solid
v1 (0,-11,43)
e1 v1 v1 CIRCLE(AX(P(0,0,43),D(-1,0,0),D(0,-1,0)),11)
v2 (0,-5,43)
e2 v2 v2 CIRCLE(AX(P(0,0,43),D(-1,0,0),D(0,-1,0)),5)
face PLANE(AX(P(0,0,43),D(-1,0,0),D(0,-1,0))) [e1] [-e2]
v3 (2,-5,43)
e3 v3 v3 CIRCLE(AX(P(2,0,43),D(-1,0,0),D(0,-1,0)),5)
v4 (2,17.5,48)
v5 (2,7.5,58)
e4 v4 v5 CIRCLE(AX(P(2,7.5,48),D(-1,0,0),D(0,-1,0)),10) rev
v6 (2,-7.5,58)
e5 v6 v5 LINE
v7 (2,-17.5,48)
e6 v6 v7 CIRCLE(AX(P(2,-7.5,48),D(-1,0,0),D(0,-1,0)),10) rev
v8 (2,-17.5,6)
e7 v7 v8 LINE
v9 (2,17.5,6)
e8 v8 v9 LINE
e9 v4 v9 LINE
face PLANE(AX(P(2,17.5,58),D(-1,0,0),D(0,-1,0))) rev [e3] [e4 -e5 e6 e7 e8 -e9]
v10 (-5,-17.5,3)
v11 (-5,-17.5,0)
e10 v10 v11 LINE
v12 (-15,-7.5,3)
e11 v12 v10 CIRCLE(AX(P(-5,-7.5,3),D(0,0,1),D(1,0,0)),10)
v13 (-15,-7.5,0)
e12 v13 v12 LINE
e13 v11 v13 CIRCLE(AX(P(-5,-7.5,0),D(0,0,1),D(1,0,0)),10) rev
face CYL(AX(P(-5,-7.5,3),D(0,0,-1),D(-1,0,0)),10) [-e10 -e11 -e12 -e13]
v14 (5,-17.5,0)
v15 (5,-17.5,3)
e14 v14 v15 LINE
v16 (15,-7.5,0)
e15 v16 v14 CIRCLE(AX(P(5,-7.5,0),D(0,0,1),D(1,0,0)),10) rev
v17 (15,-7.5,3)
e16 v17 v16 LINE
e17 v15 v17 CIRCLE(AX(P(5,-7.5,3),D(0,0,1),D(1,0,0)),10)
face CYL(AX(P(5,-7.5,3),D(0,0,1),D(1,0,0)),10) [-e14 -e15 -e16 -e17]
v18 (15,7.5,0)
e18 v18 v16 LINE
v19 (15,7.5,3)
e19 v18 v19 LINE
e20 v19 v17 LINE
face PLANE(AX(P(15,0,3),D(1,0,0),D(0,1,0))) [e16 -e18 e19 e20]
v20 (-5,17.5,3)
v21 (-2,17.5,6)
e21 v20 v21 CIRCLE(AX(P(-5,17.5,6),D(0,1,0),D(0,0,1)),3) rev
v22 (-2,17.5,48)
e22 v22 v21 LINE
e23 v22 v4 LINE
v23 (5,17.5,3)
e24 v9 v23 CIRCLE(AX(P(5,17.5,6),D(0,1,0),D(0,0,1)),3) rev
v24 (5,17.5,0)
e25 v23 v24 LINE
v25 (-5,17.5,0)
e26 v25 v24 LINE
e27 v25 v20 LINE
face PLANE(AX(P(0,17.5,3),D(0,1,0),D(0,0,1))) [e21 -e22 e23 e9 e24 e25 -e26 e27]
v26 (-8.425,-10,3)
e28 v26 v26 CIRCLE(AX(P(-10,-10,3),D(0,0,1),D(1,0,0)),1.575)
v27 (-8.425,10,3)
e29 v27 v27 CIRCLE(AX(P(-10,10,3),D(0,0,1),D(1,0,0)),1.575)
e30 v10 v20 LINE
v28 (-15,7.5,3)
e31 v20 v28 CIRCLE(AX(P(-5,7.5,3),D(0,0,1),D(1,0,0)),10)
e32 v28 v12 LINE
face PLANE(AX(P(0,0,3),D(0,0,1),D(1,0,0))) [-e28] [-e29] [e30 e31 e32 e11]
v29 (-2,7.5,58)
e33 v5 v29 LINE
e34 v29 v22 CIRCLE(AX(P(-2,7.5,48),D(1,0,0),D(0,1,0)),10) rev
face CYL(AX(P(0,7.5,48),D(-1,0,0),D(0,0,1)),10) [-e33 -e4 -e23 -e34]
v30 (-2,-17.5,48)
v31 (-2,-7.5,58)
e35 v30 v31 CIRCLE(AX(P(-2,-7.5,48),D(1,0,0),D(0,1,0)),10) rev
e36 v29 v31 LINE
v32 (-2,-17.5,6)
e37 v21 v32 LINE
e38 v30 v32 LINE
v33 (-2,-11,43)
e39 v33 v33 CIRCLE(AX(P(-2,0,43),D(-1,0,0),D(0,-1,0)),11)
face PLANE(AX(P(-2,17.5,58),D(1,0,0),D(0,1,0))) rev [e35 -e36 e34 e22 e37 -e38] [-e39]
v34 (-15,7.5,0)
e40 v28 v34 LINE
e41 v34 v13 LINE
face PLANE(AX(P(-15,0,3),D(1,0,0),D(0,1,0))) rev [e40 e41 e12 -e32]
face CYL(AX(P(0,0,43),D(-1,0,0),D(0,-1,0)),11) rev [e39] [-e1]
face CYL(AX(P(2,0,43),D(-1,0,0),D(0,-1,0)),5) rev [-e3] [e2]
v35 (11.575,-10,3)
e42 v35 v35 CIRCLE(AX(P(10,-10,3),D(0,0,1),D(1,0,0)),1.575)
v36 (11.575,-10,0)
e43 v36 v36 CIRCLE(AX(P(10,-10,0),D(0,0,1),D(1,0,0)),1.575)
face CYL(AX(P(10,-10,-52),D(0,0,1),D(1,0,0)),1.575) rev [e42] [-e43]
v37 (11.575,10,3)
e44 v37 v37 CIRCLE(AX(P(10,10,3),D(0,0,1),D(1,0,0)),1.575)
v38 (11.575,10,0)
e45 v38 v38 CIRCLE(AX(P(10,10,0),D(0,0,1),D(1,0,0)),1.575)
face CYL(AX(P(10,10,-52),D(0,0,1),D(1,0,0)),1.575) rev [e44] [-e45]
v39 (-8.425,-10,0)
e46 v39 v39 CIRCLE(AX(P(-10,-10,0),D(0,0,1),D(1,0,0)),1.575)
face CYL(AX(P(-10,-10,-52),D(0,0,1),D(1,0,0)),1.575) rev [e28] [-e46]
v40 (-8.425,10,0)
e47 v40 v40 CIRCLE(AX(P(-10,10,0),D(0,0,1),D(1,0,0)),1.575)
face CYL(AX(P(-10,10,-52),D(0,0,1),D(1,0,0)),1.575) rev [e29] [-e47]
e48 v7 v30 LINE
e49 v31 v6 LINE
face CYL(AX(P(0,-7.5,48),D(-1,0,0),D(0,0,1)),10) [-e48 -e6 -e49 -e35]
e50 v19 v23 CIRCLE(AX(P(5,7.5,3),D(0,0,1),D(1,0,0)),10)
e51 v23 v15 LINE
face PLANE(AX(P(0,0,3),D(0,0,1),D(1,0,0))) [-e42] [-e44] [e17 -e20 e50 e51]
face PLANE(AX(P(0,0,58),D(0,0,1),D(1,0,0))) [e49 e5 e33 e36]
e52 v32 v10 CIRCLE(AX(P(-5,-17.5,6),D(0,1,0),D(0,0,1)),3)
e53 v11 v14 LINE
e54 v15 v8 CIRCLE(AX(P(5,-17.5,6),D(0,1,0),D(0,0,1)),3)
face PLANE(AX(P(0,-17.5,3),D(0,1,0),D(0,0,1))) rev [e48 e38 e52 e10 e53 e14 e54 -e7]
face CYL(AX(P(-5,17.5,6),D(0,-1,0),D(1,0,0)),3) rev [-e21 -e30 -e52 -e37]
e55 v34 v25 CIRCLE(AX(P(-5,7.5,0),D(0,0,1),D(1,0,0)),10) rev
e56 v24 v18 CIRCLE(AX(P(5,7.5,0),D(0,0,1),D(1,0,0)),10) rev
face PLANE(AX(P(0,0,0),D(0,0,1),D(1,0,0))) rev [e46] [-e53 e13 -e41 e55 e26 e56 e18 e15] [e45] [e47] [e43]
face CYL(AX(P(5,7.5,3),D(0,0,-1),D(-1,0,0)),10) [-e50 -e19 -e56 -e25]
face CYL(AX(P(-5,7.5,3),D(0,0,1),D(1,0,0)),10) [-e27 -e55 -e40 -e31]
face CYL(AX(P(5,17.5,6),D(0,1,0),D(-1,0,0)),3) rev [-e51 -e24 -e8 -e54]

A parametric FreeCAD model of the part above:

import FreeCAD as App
import Part
import Sketcher
Q = App.Units.Quantity


def edges_at(feature, points):
    """Names of the edges that pass closest to the given points."""
    edges = feature.Shape.Edges
    near = lambda p: min(range(len(edges)), key=lambda i: edges[i].distToShape(Part.Vertex(*p))[0])
    return sorted({f"Edge{near(p) + 1}" for p in points})

doc = App.newDocument("Part")
body = doc.addObject("PartDesign::Body", "Body")

sketch1 = doc.addObject("Sketcher::SketchObject", "Sketch")
body.addObject(sketch1)
sketch1.AttachmentSupport = (doc.XY_Plane, [""])
sketch1.MapMode = "FlatFace"
sketch1.addGeometry(Part.LineSegment(App.Vector(-15, 17.5, 0), App.Vector(-15, -17.5, 0)), False)
sketch1.addGeometry(Part.LineSegment(App.Vector(-15, -17.5, 0), App.Vector(15, -17.5, 0)), False)
sketch1.addGeometry(Part.LineSegment(App.Vector(15, -17.5, 0), App.Vector(15, 17.5, 0)), False)
sketch1.addGeometry(Part.LineSegment(App.Vector(15, 17.5, 0), App.Vector(-15, 17.5, 0)), False)
sketch1.addConstraint(Sketcher.Constraint("Coincident", 0, 2, 1, 1))
sketch1.addConstraint(Sketcher.Constraint("Coincident", 1, 2, 2, 1))
sketch1.addConstraint(Sketcher.Constraint("Coincident", 2, 2, 3, 1))
sketch1.addConstraint(Sketcher.Constraint("Coincident", 3, 2, 0, 1))
sketch1.addConstraint(Sketcher.Constraint("Vertical", 0))
sketch1.addConstraint(Sketcher.Constraint("Horizontal", 1))
sketch1.addConstraint(Sketcher.Constraint("Vertical", 2))
sketch1.addConstraint(Sketcher.Constraint("Horizontal", 3))
sketch1.addConstraint(Sketcher.Constraint("Symmetric", 0, 2, 2, 2, -1, 1))
sketch1.addConstraint(Sketcher.Constraint("DistanceX", 1, 1, 1, 2, Q("30 mm")))
sketch1.addConstraint(Sketcher.Constraint("DistanceY", 0, 2, 0, 1, Q("35 mm")))
pad1 = doc.addObject("PartDesign::Pad", "Pad")
body.addObject(pad1)
pad1.Profile = sketch1
pad1.Length = 3

sketch2 = doc.addObject("Sketcher::SketchObject", "Sketch001")
body.addObject(sketch2)
sketch2.AttachmentSupport = (doc.XY_Plane, [""])
sketch2.MapMode = "FlatFace"
sketch2.AttachmentOffset = App.Placement(App.Vector(0, 0, 3), App.Rotation())
sketch2.addGeometry(Part.LineSegment(App.Vector(-2, 17.5, 0), App.Vector(-2, -17.5, 0)), False)
sketch2.addGeometry(Part.LineSegment(App.Vector(-2, -17.5, 0), App.Vector(2, -17.5, 0)), False)
sketch2.addGeometry(Part.LineSegment(App.Vector(2, -17.5, 0), App.Vector(2, 17.5, 0)), False)
sketch2.addGeometry(Part.LineSegment(App.Vector(2, 17.5, 0), App.Vector(-2, 17.5, 0)), False)
sketch2.addConstraint(Sketcher.Constraint("Coincident", 0, 2, 1, 1))
sketch2.addConstraint(Sketcher.Constraint("Coincident", 1, 2, 2, 1))
sketch2.addConstraint(Sketcher.Constraint("Coincident", 2, 2, 3, 1))
sketch2.addConstraint(Sketcher.Constraint("Coincident", 3, 2, 0, 1))
sketch2.addConstraint(Sketcher.Constraint("Vertical", 0))
sketch2.addConstraint(Sketcher.Constraint("Horizontal", 1))
sketch2.addConstraint(Sketcher.Constraint("Vertical", 2))
sketch2.addConstraint(Sketcher.Constraint("Horizontal", 3))
sketch2.addConstraint(Sketcher.Constraint("Symmetric", 0, 2, 2, 2, -1, 1))
sketch2.addConstraint(Sketcher.Constraint("DistanceX", 1, 1, 1, 2, Q("4 mm")))
sketch2.addConstraint(Sketcher.Constraint("DistanceY", 0, 2, 0, 1, Q("35 mm")))
pad2 = doc.addObject("PartDesign::Pad", "Pad001")
body.addObject(pad2)
pad2.Profile = sketch2
pad2.Length = 55

sketch3 = doc.addObject("Sketcher::SketchObject", "Sketch002")
body.addObject(sketch3)
sketch3.AttachmentSupport = (doc.XY_Plane, [""])
sketch3.MapMode = "FlatFace"
sketch3.AttachmentOffset = App.Placement(App.Vector(0, 0, 3), App.Rotation())
sketch3.addGeometry(Part.Circle(App.Vector(10, 10, 0), App.Vector(0, 0, 1), 1.575), False)
sketch3.addGeometry(Part.Circle(App.Vector(10, -10, 0), App.Vector(0, 0, 1), 1.575), False)
sketch3.addGeometry(Part.Circle(App.Vector(-10, -10, 0), App.Vector(0, 0, 1), 1.575), False)
sketch3.addGeometry(Part.Circle(App.Vector(-10, 10, 0), App.Vector(0, 0, 1), 1.575), False)
sketch3.addConstraint(Sketcher.Constraint("Equal", 0, 1))
sketch3.addConstraint(Sketcher.Constraint("Equal", 1, 2))
sketch3.addConstraint(Sketcher.Constraint("Equal", 2, 3))
sketch3.addConstraint(Sketcher.Constraint("Symmetric", 0, 3, 2, 3, -1, 1))
sketch3.addConstraint(Sketcher.Constraint("Symmetric", 1, 3, 3, 3, -1, 1))
sketch3.addConstraint(Sketcher.Constraint("Symmetric", 1, 3, 2, 3, -2))
sketch3.addConstraint(Sketcher.Constraint("Diameter", 0, Q("3.15 mm")))
sketch3.addConstraint(Sketcher.Constraint("DistanceX", -1, 1, 0, 3, Q("10 mm")))
sketch3.addConstraint(Sketcher.Constraint("DistanceY", -1, 1, 0, 3, Q("10 mm")))
pocket1 = doc.addObject("PartDesign::Pocket", "Pocket")
body.addObject(pocket1)
pocket1.Profile = sketch3
pocket1.Length = 55
doc.recompute()

fillet = doc.addObject("PartDesign::Fillet", "Fillet")
body.addObject(fillet)
fillet.Base = (pocket1, edges_at(pocket1, [
    (0, 17.5, 58),
    (0, -17.5, 58),
    (15, -17.5, 1.5),
    (-15, -17.5, 1.5),
    (-15, 17.5, 1.5),
    (15, 17.5, 1.5),
]))
fillet.Radius = 10

sketch4 = doc.addObject("Sketcher::SketchObject", "Sketch003")
body.addObject(sketch4)
sketch4.AttachmentSupport = (doc.YZ_Plane, [""])
sketch4.MapMode = "FlatFace"
sketch4.AttachmentOffset = App.Placement(App.Vector(0, 0, -2), App.Rotation())
sketch4.addGeometry(Part.Circle(App.Vector(0, 43, 0), App.Vector(0, 0, 1), 11), False)
sketch4.addConstraint(Sketcher.Constraint("PointOnObject", 0, 3, -2))
sketch4.addConstraint(Sketcher.Constraint("Diameter", 0, Q("22 mm")))
sketch4.addConstraint(Sketcher.Constraint("DistanceY", -1, 1, 0, 3, Q("43 mm")))
pocket2 = doc.addObject("PartDesign::Pocket", "Pocket001")
body.addObject(pocket2)
pocket2.Profile = sketch4
pocket2.Length = 2
pocket2.Reversed = True

sketch5 = doc.addObject("Sketcher::SketchObject", "Sketch004")
body.addObject(sketch5)
sketch5.AttachmentSupport = (doc.YZ_Plane, [""])
sketch5.MapMode = "FlatFace"
sketch5.addGeometry(Part.Circle(App.Vector(0, 43, 0), App.Vector(0, 0, 1), 5), False)
sketch5.addConstraint(Sketcher.Constraint("PointOnObject", 0, 3, -2))
sketch5.addConstraint(Sketcher.Constraint("Diameter", 0, Q("10 mm")))
sketch5.addConstraint(Sketcher.Constraint("DistanceY", -1, 1, 0, 3, Q("43 mm")))
pocket3 = doc.addObject("PartDesign::Pocket", "Pocket002")
body.addObject(pocket3)
pocket3.Profile = sketch5
pocket3.Length = 2
pocket3.Reversed = True
doc.recompute()

fillet2 = doc.addObject("PartDesign::Fillet", "Fillet001")
body.addObject(fillet2)
fillet2.Base = (pocket3, edges_at(pocket3, [(2, 0, 3), (-2, 0, 3)]))
fillet2.Radius = 3

doc.recompute()
